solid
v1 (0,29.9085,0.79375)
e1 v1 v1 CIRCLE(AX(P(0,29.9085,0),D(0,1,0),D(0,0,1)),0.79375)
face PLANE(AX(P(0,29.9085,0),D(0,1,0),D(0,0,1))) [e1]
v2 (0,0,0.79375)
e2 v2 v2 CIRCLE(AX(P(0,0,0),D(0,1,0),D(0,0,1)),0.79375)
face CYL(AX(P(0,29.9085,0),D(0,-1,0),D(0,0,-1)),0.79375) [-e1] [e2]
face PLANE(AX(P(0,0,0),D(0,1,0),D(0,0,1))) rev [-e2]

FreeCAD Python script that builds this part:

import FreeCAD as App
import Part
import Sketcher
from FreeCAD import Vector
Q = App.Units.Quantity

doc = App.newDocument("Part")
params = doc.addObject("Spreadsheet::Sheet", "Params")
for row, (alias, value) in enumerate([
    ("sketch1_diameter", "0.0625 in"),
    ("pad1_length", "1.1775 in"),
], start=1):
    params.set(f"A{row}", alias)
    params.set(f"B{row}", "=" + value)
    params.setAlias(f"B{row}", alias)

body = doc.addObject("PartDesign::Body", "Body")

sketch1 = doc.addObject("Sketcher::SketchObject", "Sketch")
body.addObject(sketch1)
sketch1.AttachmentSupport = (doc.XZ_Plane, [""])
sketch1.MapMode = "FlatFace"
sketch1.addGeometry(Part.Circle(Vector(0, 0, 0), Vector(0, 0, 1), 0.8), False)
sketch1.addConstraint(Sketcher.Constraint("Coincident", 0, 3, -1, 1))
sketch1.addConstraint(Sketcher.Constraint("Diameter", 0, Q("0.0625 in")))
sketch1.setExpression("Constraints[1]", "Params.sketch1_diameter")
pad1 = doc.addObject("PartDesign::Pad", "Pad")
body.addObject(pad1)
pad1.Profile = sketch1
pad1.setExpression("Length", "Params.pad1_length")
pad1.Reversed = True

doc.recompute()
